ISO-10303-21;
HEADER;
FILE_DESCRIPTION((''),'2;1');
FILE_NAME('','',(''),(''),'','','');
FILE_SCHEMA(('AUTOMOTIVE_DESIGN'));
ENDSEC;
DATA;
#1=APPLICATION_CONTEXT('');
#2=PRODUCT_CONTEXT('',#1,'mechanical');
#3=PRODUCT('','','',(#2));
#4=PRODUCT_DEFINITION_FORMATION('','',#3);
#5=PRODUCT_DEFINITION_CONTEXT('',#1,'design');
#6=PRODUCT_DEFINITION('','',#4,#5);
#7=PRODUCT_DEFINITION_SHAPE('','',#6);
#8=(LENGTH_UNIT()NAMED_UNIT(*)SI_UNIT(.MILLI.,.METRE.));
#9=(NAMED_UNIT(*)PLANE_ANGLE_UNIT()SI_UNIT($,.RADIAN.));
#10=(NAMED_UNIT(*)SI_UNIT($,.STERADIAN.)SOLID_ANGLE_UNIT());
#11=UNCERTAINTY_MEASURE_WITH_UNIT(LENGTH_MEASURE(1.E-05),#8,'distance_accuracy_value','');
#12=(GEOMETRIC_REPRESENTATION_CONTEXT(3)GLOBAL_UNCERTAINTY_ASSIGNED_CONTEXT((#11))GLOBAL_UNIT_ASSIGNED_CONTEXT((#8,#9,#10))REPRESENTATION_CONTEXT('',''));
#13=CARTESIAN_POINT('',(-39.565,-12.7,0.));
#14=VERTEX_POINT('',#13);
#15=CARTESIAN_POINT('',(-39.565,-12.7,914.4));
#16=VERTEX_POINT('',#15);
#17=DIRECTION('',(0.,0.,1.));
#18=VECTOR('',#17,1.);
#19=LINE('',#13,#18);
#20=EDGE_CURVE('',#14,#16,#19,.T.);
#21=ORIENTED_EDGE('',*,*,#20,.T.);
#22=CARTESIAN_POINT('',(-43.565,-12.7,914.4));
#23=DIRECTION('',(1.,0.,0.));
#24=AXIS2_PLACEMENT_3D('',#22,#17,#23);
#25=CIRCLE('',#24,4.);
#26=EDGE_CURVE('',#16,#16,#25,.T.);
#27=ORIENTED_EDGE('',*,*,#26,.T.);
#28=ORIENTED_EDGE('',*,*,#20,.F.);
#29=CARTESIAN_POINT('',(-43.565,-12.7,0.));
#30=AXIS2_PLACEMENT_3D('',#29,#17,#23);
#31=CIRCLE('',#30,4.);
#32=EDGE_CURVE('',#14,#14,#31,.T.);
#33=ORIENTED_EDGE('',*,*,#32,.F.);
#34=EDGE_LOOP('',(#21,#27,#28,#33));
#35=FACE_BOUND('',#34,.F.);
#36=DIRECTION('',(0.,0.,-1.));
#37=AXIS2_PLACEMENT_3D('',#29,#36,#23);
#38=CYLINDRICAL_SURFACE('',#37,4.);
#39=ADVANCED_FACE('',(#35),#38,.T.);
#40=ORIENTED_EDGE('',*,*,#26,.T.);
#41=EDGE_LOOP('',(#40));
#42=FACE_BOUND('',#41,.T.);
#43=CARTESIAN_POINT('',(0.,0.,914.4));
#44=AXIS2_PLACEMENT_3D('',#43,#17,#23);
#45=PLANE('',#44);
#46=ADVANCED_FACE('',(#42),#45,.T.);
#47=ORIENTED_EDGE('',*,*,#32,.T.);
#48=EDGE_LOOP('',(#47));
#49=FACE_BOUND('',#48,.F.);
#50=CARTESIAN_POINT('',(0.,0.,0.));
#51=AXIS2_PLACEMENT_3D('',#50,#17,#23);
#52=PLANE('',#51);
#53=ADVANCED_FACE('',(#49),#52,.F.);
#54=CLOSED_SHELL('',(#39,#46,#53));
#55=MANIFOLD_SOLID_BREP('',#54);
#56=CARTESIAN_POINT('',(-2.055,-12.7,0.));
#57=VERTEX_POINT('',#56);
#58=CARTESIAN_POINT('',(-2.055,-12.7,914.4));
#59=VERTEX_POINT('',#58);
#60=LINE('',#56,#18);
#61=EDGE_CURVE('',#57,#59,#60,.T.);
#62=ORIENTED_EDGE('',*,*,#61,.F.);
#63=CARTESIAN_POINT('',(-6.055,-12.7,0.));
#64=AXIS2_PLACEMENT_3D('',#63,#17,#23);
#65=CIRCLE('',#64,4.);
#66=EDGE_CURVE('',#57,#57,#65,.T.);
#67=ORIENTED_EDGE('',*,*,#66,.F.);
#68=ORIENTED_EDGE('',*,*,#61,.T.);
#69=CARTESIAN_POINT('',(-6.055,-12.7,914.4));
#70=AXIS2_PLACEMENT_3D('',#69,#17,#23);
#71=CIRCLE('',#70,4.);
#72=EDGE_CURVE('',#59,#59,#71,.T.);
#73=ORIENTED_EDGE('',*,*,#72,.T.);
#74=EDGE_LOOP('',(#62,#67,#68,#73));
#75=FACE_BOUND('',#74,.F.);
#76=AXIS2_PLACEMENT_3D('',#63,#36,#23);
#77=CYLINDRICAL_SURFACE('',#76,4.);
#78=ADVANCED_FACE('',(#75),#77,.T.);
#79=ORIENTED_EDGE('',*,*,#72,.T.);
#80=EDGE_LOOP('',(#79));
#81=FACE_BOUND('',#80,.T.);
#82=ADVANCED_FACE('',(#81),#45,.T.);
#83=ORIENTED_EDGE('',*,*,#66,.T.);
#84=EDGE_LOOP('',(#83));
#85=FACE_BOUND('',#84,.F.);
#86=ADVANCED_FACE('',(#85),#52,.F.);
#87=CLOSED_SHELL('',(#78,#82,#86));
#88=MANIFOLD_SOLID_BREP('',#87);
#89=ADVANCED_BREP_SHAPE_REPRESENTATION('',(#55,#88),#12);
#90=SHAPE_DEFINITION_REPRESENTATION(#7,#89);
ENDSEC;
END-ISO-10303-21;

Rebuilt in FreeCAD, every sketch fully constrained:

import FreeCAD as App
import Part
import Sketcher

V = App.Vector

doc = App.newDocument("Part")
body = doc.addObject("PartDesign::Body", "Body")
body.AllowCompound = True

# Sketch on XY plane
sketch1 = body.newObject("Sketcher::SketchObject", "Sketch")
sketch1.AttachmentSupport = (doc.getObject("XY_Plane"), [""])
sketch1.MapMode = "FlatFace"
sketch1.addGeometry([
    Part.Circle(V(-6.1, -12.7, 0), V(0, 0, 1), 4),
    Part.Circle(V(-43.6, -12.7, 0), V(0, 0, 1), 4),
], False)
sketch1.addConstraint([
    Sketcher.Constraint("Equal", 0, 1),
    Sketcher.Constraint("Horizontal", 0, 3, 1, 3),
    Sketcher.Constraint("Diameter", 0, 8.0),
    Sketcher.Constraint("DistanceY", 0, 3, -1, 1, 12.7),
    Sketcher.Constraint("DistanceX", 1, 3, 0, 3, 37.51),
    Sketcher.Constraint("DistanceX", 0, 3, -1, 1, 6.055),
])
pad1 = body.newObject("PartDesign::Pad", "Pad")
pad1.Profile = sketch1
pad1.Length = 914.4

doc.recompute()
